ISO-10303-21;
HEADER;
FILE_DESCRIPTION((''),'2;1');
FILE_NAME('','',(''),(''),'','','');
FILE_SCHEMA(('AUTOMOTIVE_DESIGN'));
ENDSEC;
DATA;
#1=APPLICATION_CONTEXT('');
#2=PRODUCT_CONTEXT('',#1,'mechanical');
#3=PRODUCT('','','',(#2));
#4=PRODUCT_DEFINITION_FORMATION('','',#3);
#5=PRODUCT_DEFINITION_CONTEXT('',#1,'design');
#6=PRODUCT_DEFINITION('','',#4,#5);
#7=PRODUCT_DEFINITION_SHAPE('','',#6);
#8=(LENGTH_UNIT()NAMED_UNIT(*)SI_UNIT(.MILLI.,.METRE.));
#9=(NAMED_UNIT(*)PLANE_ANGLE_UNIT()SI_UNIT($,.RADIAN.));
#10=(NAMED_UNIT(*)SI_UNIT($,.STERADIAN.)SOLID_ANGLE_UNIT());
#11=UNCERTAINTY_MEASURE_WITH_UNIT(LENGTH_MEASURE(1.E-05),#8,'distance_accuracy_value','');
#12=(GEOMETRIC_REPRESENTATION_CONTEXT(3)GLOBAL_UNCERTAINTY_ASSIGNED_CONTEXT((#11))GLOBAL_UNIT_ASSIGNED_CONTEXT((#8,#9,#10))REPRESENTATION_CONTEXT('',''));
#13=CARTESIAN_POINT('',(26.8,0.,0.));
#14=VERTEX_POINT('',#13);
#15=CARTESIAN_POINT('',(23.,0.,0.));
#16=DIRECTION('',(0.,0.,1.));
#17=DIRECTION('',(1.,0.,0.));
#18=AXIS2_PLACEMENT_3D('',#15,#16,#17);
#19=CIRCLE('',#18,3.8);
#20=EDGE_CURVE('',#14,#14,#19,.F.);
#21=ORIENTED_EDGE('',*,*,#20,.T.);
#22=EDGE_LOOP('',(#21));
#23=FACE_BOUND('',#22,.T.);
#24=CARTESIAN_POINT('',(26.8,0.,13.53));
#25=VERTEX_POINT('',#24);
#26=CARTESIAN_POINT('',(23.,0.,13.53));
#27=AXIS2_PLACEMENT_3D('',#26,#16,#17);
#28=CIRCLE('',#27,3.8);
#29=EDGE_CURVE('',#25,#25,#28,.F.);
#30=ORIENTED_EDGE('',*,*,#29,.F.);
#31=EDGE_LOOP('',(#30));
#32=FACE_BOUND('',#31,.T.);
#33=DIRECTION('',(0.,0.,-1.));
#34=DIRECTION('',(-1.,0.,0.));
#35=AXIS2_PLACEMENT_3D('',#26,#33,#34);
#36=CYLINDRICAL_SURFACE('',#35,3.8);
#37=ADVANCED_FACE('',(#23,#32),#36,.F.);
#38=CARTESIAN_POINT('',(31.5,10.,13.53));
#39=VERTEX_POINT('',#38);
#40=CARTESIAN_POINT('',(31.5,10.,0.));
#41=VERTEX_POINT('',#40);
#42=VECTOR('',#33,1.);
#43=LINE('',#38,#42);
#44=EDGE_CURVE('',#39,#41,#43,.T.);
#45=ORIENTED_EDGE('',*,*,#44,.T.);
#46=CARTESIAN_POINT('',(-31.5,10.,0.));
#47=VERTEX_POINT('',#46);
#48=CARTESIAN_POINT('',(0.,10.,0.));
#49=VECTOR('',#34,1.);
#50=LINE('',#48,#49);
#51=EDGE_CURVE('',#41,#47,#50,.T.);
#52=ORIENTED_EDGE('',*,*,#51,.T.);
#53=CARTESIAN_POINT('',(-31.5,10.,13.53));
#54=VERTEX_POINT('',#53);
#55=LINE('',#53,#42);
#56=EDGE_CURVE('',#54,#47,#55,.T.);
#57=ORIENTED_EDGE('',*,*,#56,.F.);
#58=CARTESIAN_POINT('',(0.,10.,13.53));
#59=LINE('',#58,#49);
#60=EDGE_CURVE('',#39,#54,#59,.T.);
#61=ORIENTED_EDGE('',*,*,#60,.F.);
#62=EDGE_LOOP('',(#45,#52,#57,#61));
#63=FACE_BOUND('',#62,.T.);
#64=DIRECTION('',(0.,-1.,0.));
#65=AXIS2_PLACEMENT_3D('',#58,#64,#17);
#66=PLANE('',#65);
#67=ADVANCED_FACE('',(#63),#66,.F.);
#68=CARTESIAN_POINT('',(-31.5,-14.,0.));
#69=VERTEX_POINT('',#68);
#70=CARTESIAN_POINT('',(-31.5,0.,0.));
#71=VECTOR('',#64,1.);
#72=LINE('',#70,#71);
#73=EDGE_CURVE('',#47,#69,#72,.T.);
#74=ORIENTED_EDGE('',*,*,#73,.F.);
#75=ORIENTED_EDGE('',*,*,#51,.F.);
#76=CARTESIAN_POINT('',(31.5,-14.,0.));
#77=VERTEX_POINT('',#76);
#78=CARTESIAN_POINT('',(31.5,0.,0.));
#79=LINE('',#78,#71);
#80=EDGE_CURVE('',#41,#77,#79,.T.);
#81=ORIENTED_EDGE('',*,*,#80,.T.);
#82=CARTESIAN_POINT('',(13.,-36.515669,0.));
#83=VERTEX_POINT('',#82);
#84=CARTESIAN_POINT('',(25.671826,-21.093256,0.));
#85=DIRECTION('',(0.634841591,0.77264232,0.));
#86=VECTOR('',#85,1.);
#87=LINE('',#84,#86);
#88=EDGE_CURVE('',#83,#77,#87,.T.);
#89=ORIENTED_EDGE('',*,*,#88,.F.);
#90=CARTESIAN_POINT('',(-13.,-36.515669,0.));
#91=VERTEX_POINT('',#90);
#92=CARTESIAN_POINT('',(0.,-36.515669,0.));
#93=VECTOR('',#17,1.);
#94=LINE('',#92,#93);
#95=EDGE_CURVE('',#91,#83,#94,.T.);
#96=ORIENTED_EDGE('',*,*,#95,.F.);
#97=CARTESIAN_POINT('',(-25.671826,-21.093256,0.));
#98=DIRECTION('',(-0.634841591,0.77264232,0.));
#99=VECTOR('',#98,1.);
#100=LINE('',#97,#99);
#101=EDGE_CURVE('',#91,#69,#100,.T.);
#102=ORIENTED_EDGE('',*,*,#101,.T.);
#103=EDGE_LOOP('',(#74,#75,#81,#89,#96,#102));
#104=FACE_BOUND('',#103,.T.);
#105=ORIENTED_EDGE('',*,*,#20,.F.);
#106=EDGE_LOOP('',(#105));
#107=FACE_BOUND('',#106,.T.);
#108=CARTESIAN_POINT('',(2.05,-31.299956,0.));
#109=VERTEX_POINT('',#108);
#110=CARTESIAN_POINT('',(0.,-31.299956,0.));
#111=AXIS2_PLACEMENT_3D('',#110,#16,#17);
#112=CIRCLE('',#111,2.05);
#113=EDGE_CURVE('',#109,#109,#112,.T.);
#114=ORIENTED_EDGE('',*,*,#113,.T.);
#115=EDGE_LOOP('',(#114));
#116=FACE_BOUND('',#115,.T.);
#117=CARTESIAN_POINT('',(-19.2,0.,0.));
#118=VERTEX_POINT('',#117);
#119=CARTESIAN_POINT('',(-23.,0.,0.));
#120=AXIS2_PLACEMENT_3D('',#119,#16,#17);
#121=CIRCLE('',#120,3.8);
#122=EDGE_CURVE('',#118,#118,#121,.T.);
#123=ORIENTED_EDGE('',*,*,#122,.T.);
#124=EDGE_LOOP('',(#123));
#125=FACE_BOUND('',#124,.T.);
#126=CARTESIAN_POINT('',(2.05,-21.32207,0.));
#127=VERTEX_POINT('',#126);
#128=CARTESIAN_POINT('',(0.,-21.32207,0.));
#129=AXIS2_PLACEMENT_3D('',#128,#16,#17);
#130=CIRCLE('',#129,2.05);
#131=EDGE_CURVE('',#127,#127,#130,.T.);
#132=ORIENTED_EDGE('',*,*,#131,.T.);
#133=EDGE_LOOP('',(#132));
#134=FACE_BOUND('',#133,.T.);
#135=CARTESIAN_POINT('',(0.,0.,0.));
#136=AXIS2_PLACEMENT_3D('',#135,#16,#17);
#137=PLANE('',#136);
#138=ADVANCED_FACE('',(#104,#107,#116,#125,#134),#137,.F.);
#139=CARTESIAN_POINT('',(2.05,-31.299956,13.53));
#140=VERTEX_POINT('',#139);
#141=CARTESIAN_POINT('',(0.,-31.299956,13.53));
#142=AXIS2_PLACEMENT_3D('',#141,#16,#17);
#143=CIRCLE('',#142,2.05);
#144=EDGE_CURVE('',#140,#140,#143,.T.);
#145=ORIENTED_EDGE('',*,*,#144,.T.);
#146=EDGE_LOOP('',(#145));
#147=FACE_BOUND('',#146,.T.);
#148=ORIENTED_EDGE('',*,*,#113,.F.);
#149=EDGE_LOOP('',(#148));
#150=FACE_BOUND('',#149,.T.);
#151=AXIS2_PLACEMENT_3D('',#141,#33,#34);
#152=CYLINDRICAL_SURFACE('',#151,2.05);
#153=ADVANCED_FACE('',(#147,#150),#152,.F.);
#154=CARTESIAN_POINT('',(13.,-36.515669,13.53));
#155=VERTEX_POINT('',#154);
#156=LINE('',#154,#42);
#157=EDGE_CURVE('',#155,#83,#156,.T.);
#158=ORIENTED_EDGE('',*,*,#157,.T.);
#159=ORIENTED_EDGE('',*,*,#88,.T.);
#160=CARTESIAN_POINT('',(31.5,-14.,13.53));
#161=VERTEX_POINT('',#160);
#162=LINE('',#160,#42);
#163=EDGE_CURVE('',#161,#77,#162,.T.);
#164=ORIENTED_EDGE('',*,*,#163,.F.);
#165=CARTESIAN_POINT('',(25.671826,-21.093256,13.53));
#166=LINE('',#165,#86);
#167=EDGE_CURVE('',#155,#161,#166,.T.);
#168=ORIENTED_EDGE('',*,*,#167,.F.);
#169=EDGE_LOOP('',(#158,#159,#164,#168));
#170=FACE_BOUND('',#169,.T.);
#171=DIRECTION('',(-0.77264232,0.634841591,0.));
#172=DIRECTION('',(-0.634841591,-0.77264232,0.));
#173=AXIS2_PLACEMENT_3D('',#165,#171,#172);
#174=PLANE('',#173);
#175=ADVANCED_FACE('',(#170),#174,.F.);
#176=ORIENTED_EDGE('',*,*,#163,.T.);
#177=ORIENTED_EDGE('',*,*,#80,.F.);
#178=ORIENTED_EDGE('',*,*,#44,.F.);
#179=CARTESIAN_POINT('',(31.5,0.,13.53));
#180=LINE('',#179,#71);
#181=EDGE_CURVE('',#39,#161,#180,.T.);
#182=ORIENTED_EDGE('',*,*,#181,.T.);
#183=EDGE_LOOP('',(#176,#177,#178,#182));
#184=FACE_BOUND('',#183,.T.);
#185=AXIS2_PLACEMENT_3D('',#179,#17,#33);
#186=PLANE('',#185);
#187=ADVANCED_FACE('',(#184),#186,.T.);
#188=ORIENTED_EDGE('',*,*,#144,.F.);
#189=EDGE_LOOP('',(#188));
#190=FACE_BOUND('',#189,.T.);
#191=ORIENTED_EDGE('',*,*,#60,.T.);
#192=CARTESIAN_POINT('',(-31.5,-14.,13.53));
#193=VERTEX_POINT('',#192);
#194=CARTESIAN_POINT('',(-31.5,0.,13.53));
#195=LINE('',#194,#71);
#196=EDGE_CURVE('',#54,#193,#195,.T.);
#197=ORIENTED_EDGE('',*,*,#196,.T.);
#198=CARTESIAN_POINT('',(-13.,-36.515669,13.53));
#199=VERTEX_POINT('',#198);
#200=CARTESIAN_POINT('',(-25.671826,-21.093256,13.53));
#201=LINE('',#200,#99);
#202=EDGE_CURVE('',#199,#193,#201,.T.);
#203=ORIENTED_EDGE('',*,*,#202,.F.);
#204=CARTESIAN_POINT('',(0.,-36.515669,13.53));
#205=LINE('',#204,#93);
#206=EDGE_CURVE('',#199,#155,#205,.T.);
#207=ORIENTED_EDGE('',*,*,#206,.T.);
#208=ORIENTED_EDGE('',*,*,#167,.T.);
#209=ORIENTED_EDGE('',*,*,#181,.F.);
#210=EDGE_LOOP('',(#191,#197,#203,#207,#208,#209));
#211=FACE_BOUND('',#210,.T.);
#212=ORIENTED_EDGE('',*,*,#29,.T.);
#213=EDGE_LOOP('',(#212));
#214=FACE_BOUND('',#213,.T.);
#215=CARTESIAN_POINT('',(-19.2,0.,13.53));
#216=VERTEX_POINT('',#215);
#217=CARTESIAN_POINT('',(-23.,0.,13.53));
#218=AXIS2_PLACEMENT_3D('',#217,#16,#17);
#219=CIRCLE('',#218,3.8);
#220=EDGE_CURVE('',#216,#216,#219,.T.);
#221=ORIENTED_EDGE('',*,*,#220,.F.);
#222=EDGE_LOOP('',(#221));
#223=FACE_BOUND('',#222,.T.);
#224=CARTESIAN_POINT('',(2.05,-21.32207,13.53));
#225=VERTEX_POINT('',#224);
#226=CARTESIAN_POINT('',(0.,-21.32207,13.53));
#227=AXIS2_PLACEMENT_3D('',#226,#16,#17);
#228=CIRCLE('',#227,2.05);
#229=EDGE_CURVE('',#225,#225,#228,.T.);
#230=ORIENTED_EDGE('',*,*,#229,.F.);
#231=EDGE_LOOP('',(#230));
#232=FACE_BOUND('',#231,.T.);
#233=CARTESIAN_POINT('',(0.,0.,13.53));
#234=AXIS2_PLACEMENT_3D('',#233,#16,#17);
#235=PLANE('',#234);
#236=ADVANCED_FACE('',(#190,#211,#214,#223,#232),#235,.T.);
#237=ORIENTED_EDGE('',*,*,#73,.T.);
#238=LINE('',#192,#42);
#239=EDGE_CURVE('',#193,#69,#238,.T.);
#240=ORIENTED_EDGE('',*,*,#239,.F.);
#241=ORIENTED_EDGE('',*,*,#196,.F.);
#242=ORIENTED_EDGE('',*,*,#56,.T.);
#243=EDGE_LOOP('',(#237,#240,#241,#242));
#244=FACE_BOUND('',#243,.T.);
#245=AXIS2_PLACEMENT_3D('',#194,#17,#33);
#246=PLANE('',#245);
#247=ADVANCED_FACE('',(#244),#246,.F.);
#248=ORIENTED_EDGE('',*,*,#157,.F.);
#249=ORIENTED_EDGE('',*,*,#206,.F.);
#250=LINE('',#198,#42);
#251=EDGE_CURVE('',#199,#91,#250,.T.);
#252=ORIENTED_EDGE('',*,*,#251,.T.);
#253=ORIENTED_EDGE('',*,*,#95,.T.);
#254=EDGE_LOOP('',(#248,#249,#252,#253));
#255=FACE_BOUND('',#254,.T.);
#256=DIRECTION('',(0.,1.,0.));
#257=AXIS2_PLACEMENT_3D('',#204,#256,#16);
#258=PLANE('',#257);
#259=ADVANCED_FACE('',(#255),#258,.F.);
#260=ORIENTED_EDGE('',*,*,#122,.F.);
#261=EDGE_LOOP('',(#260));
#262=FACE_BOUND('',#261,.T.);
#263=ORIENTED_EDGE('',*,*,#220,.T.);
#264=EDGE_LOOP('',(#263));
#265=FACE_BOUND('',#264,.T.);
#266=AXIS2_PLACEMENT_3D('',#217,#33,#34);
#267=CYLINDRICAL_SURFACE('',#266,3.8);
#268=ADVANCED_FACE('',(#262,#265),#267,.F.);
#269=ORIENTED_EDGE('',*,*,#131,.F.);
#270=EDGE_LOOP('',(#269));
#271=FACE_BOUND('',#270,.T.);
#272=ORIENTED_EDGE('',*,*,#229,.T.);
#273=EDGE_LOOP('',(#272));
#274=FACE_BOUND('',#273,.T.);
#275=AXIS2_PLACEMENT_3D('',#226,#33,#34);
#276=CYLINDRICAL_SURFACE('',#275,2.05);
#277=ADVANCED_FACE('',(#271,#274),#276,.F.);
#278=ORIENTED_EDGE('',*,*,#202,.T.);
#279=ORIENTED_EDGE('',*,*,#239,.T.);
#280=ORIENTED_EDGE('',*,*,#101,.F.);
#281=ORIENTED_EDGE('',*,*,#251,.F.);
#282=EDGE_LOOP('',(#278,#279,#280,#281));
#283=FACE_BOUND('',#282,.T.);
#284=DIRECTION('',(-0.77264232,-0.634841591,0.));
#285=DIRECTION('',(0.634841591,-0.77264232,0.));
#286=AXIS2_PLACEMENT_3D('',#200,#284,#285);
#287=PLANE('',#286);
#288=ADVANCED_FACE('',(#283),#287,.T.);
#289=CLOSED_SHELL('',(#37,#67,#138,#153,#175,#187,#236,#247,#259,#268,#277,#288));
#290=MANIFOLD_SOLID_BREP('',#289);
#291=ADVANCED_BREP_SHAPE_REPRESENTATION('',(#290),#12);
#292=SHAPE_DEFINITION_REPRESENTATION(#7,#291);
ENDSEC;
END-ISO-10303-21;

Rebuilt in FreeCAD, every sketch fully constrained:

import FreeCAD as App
import Part
import Sketcher
from FreeCAD import Vector

doc = App.newDocument("Part")
body = doc.addObject("PartDesign::Body", "Body")

# Sketch on XY plane
sketch1 = body.newObject("Sketcher::SketchObject", "Sketch")
sketch1.AttachmentSupport = (doc.getObject("XY_Plane"), [""])
sketch1.MapMode = "FlatFace"
sketch1.addGeometry(Part.LineSegment(Vector(-31.5, 10, 0), Vector(-31.5, -14, 0)), False)
sketch1.addGeometry(Part.LineSegment(Vector(-31.5, -14, 0), Vector(31.5, -14, 0)), False)
sketch1.addGeometry(Part.LineSegment(Vector(31.5, -14, 0), Vector(31.5, 10, 0)), False)
sketch1.addGeometry(Part.LineSegment(Vector(31.5, 10, 0), Vector(-31.5, 10, 0)), False)
sketch1.addGeometry(Part.Circle(Vector(-23, 0, 0), Vector(0, 0, 1), 3.8), False)
sketch1.addGeometry(Part.Circle(Vector(23, 0, 0), Vector(0, 0, 1), 3.8), False)
sketch1.addConstraint(Sketcher.Constraint("Coincident", 0, 2, 1, 1))
sketch1.addConstraint(Sketcher.Constraint("Coincident", 1, 2, 2, 1))
sketch1.addConstraint(Sketcher.Constraint("Coincident", 2, 2, 3, 1))
sketch1.addConstraint(Sketcher.Constraint("Coincident", 3, 2, 0, 1))
sketch1.addConstraint(Sketcher.Constraint("Vertical", 0))
sketch1.addConstraint(Sketcher.Constraint("Horizontal", 1))
sketch1.addConstraint(Sketcher.Constraint("Vertical", 2))
sketch1.addConstraint(Sketcher.Constraint("Horizontal", 3))
sketch1.addConstraint(Sketcher.Constraint("Equal", 4, 5))
sketch1.addConstraint(Sketcher.Constraint("Symmetric", 4, 3, 5, 3, -1, 1))
sketch1.addConstraint(Sketcher.Constraint("PointOnObject", 4, 3, -1))
sketch1.addConstraint(Sketcher.Constraint("Diameter", 4, 7.6))
sketch1.addConstraint(Sketcher.Constraint("DistanceX", 1, 1, 1, 2, 63.0))
sketch1.addConstraint(Sketcher.Constraint("DistanceY", 0, 2, 0, 1, 24.0))
sketch1.addConstraint(Sketcher.Constraint("DistanceX", 4, 3, -1, 1, 23.0))
sketch1.addConstraint(Sketcher.Constraint("DistanceY", 0, 2, -1, 1, 14.0))
sketch1.addConstraint(Sketcher.Constraint("DistanceX", 0, 2, -1, 1, 31.5))
pad1 = body.newObject("PartDesign::Pad", "Pad")
pad1.Profile = sketch1
pad1.Length = 13.53

# Sketch on XY plane
sketch2 = body.newObject("Sketcher::SketchObject", "Sketch001")
sketch2.AttachmentSupport = (doc.getObject("XY_Plane"), [""])
sketch2.MapMode = "FlatFace"
sketch2.addGeometry(Part.LineSegment(Vector(13, -36.515669, 0), Vector(31.5, -14, 0)), False)
sketch2.addGeometry(Part.LineSegment(Vector(31.5, -14, 0), Vector(-31.5, -14, 0)), False)
sketch2.addGeometry(Part.LineSegment(Vector(-31.5, -14, 0), Vector(-13, -36.515669, 0)), False)
sketch2.addGeometry(Part.LineSegment(Vector(-13, -36.515669, 0), Vector(13, -36.515669, 0)), False)
sketch2.addGeometry(Part.Circle(Vector(0, -31.299956, 0), Vector(0, 0, 1), 2.05), False)
sketch2.addGeometry(Part.Circle(Vector(0, -21.32207, 0), Vector(0, 0, 1), 2.05), False)
sketch2.addConstraint(Sketcher.Constraint("Coincident", 0, 2, 1, 1))
sketch2.addConstraint(Sketcher.Constraint("Coincident", 1, 2, 2, 1))
sketch2.addConstraint(Sketcher.Constraint("Coincident", 2, 2, 3, 1))
sketch2.addConstraint(Sketcher.Constraint("Coincident", 3, 2, 0, 1))
sketch2.addConstraint(Sketcher.Constraint("Horizontal", 1))
sketch2.addConstraint(Sketcher.Constraint("Horizontal", 3))
sketch2.addConstraint(Sketcher.Constraint("Equal", 4, 5))
sketch2.addConstraint(Sketcher.Constraint("PointOnObject", 4, 3, -2))
sketch2.addConstraint(Sketcher.Constraint("PointOnObject", 5, 3, -2))
sketch2.addConstraint(Sketcher.Constraint("Equal", 0, 2))
sketch2.addConstraint(Sketcher.Constraint("Diameter", 4, 4.1))
sketch2.addConstraint(Sketcher.Constraint("DistanceX", 1, 2, 1, 1, 63.0))
sketch2.addConstraint(Sketcher.Constraint("DistanceX", 3, 1, 3, 2, 26.0))
sketch2.addConstraint(Sketcher.Constraint("DistanceY", 0, 2, -1, 1, 14.0))
sketch2.addConstraint(Sketcher.Constraint("DistanceX", 2, 2, -1, 1, 13.0))
sketch2.addConstraint(Sketcher.Constraint("DistanceY", 2, 2, 5, 3, 15.193599))
sketch2.addConstraint(Sketcher.Constraint("DistanceY", 5, 3, -1, 1, 21.32207))
sketch2.addConstraint(Sketcher.Constraint("DistanceY", 4, 3, -1, 1, 31.299956))
pad2 = body.newObject("PartDesign::Pad", "Pad001")
pad2.Profile = sketch2
pad2.Length = 13.53

doc.recompute()
